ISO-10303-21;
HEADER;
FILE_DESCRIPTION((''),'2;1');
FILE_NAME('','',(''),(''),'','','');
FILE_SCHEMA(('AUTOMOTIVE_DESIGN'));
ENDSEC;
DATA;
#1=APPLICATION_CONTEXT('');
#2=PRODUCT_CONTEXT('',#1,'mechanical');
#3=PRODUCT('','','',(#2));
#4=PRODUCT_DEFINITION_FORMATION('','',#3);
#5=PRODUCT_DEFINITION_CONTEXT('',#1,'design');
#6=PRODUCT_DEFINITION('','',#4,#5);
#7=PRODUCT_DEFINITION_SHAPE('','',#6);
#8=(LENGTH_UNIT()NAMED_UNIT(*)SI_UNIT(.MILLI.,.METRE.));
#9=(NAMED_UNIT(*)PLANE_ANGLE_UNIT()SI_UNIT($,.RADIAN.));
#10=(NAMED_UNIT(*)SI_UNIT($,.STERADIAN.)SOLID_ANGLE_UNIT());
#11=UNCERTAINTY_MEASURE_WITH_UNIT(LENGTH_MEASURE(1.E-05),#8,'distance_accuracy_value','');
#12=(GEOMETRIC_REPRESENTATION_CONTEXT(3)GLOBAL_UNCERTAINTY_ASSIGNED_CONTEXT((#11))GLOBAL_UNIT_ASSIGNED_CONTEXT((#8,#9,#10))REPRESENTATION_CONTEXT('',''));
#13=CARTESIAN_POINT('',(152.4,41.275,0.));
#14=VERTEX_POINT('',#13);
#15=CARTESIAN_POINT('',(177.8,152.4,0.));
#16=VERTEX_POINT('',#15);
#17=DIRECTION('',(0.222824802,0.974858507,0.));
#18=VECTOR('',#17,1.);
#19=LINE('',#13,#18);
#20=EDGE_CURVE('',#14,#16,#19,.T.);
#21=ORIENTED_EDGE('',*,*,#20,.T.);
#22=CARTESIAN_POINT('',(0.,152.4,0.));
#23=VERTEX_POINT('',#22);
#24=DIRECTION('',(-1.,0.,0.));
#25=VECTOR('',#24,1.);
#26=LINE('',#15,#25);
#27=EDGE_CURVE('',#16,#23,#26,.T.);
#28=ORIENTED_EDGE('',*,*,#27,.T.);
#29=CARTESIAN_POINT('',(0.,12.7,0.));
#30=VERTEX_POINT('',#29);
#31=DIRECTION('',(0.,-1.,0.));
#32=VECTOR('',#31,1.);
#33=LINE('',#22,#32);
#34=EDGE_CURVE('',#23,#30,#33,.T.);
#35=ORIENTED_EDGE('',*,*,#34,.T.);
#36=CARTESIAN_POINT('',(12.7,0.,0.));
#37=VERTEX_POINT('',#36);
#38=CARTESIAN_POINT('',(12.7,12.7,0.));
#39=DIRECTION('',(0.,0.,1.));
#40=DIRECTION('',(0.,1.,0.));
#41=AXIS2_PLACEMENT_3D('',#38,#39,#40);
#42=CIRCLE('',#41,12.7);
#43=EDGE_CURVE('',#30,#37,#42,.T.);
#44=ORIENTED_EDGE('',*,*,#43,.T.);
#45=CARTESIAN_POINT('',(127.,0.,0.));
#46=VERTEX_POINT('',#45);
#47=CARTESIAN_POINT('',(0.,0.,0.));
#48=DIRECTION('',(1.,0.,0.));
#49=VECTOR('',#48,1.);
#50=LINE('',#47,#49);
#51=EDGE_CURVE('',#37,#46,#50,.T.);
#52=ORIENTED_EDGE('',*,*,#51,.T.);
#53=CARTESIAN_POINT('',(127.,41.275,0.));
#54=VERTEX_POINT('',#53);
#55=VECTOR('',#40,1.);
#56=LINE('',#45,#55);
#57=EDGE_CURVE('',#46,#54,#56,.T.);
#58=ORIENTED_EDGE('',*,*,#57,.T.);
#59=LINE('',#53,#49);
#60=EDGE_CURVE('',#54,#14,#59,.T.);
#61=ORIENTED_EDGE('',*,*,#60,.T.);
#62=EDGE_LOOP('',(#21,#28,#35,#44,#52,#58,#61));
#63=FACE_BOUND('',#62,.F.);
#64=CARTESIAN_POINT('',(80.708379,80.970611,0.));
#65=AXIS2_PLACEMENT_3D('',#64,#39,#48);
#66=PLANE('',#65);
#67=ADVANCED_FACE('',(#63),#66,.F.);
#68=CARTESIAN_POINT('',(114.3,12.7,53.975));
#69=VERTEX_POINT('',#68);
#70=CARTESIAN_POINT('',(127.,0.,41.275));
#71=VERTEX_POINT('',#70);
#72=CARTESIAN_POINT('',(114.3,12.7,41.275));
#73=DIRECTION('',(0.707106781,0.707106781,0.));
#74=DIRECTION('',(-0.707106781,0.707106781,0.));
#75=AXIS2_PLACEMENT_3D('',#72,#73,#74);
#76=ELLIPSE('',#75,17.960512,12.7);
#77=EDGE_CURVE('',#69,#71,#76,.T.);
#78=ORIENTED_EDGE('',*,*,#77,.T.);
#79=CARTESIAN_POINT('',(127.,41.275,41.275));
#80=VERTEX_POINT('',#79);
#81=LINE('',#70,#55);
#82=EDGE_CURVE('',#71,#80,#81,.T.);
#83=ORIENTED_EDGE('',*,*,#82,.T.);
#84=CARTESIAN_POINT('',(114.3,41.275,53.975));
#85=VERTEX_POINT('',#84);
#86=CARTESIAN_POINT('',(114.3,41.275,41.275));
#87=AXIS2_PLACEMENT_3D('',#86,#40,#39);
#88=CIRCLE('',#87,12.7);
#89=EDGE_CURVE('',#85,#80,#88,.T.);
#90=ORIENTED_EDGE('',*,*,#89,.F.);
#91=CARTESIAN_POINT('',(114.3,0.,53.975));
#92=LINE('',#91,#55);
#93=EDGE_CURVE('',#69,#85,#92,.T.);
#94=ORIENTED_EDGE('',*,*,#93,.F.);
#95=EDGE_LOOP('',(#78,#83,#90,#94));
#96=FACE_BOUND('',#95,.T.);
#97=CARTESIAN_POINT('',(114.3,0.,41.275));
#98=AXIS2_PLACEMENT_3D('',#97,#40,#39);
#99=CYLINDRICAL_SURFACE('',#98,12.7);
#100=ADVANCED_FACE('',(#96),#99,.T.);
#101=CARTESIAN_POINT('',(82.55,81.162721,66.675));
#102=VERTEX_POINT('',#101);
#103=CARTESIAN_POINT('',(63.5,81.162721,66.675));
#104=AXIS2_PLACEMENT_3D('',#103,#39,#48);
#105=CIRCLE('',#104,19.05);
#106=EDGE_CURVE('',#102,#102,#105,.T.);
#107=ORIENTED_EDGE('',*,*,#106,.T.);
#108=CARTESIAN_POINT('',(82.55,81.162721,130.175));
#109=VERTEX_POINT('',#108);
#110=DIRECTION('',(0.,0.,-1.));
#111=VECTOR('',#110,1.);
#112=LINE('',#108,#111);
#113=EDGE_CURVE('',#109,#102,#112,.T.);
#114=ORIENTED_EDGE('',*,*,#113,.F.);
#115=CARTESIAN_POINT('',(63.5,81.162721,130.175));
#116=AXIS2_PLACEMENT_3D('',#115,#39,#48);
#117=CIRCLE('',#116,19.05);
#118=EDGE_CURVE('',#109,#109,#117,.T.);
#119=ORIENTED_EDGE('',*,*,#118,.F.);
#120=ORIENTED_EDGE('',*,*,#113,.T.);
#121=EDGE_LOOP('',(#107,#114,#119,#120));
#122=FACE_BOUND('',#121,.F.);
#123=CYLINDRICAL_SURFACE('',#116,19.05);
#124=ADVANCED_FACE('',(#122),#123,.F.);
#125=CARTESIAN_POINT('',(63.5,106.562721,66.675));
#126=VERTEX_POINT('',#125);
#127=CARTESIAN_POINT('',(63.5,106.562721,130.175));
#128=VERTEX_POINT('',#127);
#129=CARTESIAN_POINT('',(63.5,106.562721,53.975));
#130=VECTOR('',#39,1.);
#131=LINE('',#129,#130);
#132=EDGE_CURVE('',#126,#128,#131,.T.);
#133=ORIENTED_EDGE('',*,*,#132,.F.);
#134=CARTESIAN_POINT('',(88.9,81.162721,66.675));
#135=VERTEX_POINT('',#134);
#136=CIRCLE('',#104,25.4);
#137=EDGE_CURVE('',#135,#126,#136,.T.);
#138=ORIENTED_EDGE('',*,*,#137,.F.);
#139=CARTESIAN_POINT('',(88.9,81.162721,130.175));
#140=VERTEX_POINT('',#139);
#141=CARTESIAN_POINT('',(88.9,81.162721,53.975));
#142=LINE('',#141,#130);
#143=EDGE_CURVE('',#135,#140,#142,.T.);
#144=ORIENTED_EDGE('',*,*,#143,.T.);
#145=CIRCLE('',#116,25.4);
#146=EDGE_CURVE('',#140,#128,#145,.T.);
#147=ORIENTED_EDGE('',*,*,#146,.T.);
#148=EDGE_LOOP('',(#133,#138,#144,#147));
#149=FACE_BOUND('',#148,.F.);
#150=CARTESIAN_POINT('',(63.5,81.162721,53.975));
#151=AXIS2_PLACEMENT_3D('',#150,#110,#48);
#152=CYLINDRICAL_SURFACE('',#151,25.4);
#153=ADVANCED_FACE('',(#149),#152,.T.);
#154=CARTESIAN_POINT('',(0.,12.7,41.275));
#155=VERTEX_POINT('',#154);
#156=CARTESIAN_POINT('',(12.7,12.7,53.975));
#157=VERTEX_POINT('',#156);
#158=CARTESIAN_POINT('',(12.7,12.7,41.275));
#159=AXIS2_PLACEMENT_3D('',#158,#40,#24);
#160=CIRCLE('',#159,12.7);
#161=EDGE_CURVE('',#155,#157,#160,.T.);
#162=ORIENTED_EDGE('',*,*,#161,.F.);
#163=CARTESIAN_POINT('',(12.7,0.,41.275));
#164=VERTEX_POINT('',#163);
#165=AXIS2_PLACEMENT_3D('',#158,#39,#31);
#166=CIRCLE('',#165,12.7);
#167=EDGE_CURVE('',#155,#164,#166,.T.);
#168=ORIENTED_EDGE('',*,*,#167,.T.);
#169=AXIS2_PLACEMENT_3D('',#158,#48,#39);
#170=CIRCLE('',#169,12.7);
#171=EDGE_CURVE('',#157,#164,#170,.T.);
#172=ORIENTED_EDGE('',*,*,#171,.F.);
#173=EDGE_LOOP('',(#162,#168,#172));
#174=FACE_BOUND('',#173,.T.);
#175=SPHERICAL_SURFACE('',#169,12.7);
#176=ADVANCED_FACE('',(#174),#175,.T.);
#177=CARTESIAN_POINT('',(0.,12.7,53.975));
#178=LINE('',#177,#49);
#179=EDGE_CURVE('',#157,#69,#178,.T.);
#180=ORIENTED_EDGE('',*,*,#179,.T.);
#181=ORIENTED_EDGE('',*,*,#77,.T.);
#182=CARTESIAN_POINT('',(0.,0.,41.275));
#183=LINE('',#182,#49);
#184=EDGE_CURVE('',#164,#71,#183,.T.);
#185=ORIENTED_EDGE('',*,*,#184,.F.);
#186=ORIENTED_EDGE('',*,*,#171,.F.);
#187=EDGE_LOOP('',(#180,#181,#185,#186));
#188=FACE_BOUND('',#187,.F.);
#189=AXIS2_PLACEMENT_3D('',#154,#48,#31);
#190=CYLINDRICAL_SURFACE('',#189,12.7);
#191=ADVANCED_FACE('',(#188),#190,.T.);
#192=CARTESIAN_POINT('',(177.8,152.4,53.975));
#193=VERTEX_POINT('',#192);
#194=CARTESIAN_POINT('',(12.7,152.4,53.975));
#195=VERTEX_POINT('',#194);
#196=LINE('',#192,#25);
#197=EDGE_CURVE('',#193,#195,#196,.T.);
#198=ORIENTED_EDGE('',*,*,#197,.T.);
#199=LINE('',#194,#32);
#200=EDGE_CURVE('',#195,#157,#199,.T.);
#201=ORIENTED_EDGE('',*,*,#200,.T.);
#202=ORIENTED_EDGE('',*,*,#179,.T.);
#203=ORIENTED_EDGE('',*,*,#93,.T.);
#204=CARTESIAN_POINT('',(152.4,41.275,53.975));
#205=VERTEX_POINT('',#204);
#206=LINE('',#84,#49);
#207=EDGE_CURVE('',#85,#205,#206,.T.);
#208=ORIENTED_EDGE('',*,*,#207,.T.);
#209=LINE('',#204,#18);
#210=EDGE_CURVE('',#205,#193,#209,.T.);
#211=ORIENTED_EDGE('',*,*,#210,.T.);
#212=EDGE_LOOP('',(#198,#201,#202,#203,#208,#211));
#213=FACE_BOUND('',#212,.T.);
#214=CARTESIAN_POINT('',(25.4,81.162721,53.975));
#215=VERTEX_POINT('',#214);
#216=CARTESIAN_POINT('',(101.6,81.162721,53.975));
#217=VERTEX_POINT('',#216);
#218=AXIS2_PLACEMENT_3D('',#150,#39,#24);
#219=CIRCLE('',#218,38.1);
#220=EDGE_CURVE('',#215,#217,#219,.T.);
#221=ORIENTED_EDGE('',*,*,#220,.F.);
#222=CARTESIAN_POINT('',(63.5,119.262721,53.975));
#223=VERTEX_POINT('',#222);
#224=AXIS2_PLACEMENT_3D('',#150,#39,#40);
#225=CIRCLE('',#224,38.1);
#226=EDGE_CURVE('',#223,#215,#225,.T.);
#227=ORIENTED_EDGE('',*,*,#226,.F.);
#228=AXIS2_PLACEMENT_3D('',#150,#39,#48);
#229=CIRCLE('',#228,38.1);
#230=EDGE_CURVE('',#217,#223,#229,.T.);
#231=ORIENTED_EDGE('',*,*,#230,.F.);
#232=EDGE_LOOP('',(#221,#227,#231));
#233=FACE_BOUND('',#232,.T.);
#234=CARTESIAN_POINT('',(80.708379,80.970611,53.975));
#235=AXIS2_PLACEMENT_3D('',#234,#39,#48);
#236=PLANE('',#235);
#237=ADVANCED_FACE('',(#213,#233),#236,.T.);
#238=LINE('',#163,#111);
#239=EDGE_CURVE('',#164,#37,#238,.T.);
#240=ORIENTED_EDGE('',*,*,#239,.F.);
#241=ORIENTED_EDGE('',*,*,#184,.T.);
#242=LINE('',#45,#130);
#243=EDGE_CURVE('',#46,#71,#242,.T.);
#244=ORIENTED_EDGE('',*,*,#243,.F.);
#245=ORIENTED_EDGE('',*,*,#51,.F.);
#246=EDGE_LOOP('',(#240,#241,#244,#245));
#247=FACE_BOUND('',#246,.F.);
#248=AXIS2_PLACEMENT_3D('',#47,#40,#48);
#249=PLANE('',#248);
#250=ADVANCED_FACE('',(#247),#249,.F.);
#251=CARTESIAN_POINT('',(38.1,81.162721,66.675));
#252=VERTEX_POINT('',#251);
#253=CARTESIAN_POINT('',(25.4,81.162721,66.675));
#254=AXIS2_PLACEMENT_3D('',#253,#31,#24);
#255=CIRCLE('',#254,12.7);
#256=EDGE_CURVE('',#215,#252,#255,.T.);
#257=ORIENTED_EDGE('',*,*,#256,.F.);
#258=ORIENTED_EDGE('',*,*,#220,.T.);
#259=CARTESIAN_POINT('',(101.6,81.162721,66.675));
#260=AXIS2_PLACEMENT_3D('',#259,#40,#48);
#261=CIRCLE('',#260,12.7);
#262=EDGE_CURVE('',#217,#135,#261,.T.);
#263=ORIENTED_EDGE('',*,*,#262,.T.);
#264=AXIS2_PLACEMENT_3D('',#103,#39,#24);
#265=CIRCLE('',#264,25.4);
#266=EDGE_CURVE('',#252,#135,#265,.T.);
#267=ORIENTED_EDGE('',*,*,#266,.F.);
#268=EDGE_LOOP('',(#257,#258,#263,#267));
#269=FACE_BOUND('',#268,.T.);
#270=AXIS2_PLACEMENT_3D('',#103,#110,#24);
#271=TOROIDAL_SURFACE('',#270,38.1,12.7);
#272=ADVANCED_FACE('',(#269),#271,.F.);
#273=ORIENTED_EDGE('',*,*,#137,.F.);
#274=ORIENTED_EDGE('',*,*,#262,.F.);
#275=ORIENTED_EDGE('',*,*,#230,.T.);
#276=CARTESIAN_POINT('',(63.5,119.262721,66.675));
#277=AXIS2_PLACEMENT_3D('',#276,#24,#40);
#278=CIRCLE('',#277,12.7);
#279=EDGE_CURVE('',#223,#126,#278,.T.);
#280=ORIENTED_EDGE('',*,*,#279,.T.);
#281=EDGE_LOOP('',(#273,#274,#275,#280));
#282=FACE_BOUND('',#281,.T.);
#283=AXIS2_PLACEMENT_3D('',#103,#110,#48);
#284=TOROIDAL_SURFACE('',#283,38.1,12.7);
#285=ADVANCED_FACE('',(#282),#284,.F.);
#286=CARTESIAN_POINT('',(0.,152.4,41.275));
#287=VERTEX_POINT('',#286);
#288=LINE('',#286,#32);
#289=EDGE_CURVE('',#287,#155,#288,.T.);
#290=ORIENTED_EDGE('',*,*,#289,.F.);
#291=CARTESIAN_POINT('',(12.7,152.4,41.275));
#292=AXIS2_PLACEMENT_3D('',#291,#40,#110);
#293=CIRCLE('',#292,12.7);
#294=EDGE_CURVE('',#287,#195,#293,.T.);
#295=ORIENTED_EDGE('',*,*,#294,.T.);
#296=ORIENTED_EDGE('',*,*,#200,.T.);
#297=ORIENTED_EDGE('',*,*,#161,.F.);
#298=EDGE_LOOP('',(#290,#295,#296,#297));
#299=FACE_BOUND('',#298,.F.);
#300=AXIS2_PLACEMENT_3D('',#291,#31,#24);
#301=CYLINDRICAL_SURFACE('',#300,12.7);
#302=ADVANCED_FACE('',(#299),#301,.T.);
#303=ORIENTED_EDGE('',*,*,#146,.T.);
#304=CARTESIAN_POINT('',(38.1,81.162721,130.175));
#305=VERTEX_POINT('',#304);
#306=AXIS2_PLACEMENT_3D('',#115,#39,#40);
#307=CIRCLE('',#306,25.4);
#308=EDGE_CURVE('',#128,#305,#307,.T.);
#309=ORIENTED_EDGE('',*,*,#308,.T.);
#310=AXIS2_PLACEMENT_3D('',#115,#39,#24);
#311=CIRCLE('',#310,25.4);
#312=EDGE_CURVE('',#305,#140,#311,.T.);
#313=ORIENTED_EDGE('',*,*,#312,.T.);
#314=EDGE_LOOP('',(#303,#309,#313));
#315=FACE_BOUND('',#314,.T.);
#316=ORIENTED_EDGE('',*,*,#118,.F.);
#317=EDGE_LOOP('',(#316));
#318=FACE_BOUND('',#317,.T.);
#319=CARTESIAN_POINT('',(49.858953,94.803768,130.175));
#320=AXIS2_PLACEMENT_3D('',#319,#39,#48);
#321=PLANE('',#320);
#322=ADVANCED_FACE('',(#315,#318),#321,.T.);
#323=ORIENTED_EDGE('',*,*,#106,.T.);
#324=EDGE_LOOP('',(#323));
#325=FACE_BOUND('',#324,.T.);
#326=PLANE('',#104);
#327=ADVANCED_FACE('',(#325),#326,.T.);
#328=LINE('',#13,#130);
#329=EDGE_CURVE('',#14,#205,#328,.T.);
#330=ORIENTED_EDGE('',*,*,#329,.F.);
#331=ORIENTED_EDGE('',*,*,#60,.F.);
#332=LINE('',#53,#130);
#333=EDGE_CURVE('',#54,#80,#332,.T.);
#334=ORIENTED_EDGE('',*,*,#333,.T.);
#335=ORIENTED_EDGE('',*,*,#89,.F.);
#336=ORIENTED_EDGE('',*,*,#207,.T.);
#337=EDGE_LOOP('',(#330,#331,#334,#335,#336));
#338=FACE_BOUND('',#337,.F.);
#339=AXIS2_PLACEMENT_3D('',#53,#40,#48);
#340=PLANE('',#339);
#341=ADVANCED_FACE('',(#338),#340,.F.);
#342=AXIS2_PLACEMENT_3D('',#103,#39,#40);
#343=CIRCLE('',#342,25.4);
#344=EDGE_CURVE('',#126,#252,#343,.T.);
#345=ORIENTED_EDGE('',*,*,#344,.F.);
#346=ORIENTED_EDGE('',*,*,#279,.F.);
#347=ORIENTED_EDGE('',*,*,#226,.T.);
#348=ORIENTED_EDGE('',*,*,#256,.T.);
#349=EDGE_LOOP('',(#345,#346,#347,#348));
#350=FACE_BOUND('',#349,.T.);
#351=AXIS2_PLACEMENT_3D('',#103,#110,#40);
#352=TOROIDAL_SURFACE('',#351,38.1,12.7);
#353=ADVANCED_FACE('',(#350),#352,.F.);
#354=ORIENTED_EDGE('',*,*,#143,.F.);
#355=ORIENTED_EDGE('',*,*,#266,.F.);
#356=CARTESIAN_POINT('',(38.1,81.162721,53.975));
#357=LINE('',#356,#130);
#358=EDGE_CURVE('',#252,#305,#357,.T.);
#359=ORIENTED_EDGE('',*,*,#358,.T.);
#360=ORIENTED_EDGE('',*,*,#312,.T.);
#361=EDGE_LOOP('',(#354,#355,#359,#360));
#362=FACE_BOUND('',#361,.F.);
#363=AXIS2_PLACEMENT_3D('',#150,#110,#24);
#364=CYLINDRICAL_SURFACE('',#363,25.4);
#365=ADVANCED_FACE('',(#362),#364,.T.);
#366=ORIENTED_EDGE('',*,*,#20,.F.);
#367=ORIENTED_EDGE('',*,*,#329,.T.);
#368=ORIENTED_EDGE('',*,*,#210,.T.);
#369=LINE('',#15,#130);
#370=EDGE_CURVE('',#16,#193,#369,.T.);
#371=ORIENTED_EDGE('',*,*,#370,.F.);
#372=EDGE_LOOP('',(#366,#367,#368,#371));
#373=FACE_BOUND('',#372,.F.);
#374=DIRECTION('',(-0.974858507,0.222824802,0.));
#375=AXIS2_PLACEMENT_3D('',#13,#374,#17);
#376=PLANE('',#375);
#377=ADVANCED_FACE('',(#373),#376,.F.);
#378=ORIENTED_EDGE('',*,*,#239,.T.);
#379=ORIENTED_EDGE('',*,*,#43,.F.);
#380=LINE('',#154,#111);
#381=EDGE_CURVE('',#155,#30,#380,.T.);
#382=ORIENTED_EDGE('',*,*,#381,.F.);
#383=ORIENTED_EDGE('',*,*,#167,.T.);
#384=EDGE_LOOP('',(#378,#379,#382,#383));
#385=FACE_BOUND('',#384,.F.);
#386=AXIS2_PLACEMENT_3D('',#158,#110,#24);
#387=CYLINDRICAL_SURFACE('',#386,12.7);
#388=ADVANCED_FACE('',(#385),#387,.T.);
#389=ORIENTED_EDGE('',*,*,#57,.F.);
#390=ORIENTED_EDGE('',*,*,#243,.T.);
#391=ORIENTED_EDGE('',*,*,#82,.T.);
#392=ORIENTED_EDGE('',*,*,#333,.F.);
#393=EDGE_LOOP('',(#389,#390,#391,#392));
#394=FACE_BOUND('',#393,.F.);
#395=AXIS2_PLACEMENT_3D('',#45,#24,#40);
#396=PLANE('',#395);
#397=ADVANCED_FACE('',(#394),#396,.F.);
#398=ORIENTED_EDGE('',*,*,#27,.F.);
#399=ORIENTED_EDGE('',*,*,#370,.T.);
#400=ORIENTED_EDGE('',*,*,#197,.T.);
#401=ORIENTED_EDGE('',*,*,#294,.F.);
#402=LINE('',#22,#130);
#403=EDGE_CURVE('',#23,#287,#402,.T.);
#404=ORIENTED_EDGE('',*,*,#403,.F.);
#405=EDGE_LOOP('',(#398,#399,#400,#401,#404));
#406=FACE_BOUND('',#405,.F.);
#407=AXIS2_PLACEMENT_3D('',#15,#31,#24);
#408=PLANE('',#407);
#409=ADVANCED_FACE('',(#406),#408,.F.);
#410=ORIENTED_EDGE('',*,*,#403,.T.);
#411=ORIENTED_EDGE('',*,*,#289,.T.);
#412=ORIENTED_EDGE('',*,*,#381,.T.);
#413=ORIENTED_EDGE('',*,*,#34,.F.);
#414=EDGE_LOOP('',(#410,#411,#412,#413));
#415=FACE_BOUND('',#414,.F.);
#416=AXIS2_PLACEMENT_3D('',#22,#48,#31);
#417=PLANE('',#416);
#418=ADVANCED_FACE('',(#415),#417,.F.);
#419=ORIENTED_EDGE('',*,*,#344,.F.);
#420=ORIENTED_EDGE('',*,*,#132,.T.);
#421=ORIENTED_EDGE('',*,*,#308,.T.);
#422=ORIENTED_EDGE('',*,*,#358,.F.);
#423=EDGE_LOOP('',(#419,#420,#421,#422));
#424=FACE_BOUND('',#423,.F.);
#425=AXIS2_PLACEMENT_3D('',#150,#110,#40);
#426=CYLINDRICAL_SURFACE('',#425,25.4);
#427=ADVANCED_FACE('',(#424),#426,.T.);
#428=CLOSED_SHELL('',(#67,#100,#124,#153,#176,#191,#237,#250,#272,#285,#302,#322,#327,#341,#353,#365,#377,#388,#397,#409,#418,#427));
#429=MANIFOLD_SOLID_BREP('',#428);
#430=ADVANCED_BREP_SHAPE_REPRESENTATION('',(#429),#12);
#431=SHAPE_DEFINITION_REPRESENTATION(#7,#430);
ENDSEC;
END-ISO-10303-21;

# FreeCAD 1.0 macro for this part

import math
import FreeCAD as App
import Part
import Sketcher
Q = App.Units.Quantity


def edges_at(feature, points):
    """Names of the edges that pass closest to the given points."""
    edges = feature.Shape.Edges
    near = lambda p: min(range(len(edges)), key=lambda i: edges[i].distToShape(Part.Vertex(*p))[0])
    return sorted({f"Edge{near(p) + 1}" for p in points})

doc = App.newDocument("Part")
body = doc.addObject("PartDesign::Body", "Body")

# Sketch on XY plane
sketch1 = body.newObject("Sketcher::SketchObject", "Sketch")
sketch1.AttachmentSupport = (doc.getObject("XY_Plane"), [""])
sketch1.MapMode = "FlatFace"
sketch1.addGeometry([
    Part.LineSegment(App.Vector(0, 152, 0), App.Vector(0, 0, 0)),  # 0
    Part.LineSegment(App.Vector(0, 0, 0), App.Vector(127, 0, 0)),  # 1
    Part.LineSegment(App.Vector(127, 0, 0), App.Vector(127, 41, 0)),  # 2
    Part.LineSegment(App.Vector(127, 41, 0), App.Vector(152, 41, 0)),  # 3
    Part.LineSegment(App.Vector(152, 41, 0), App.Vector(178, 152, 0)),  # 4
    Part.LineSegment(App.Vector(178, 152, 0), App.Vector(0, 152, 0)),  # 5
], False)
sketch1.addConstraint([
    Sketcher.Constraint("Coincident", 0, 2, 1, 1),
    Sketcher.Constraint("Coincident", 1, 2, 2, 1),
    Sketcher.Constraint("Coincident", 2, 2, 3, 1),
    Sketcher.Constraint("Coincident", 3, 2, 4, 1),
    Sketcher.Constraint("Coincident", 4, 2, 5, 1),
    Sketcher.Constraint("Coincident", 5, 2, 0, 1),
    Sketcher.Constraint("Vertical", 0),
    Sketcher.Constraint("Horizontal", 1),
    Sketcher.Constraint("Vertical", 2),
    Sketcher.Constraint("Horizontal", 3),
    Sketcher.Constraint("Horizontal", 5),
    Sketcher.Constraint("Coincident", 0, 2, -1, 1),
    Sketcher.Constraint("DistanceX", 1, 1, 1, 2, Q("5 in")),
    Sketcher.Constraint("DistanceX", 3, 1, 3, 2, Q("1 in")),
    Sketcher.Constraint("DistanceX", 5, 2, 5, 1, Q("7 in")),
    Sketcher.Constraint("DistanceY", 0, 2, 0, 1, Q("6 in")),
    Sketcher.Constraint("DistanceY", 2, 1, 2, 2, Q("1.625 in")),
])
pad1 = body.newObject("PartDesign::Pad", "Pad")
pad1.Profile = sketch1
pad1.Length = Q("2.125 in")

# Sketch on XY plane
sketch2 = body.newObject("Sketcher::SketchObject", "Sketch001")
sketch2.AttachmentSupport = (doc.getObject("XY_Plane"), [""])
sketch2.MapMode = "FlatFace"
sketch2.AttachmentOffset = App.Placement(App.Vector(0, 0, 2.125 * 25.4), App.Rotation())
sketch2.addGeometry([
    Part.ArcOfCircle(Part.Circle(App.Vector(64, 81, 0), App.Vector(0, 0, 1), 25), math.radians(90), math.radians(180)),
    Part.ArcOfCircle(Part.Circle(App.Vector(64, 81, 0), App.Vector(0, 0, 1), 25), math.radians(180), math.radians(360)),
    Part.ArcOfCircle(Part.Circle(App.Vector(64, 81, 0), App.Vector(0, 0, 1), 25), math.radians(0), math.radians(90)),
], False)
sketch2.addConstraint([
    Sketcher.Constraint("Tangent", 0, 2, 1, 1),
    Sketcher.Constraint("Tangent", 1, 2, 2, 1),
    Sketcher.Constraint("Tangent", 2, 2, 0, 1),
    Sketcher.Constraint("Horizontal", 2, 3, 0, 2),
    Sketcher.Constraint("Horizontal", 0, 2, 1, 2),
    Sketcher.Constraint("Vertical", 1, 3, 2, 2),
    Sketcher.Constraint("Radius", 0, Q("1 in")),
    Sketcher.Constraint("DistanceX", -1, 1, 0, 3, Q("2.5 in")),
    Sketcher.Constraint("DistanceY", -1, 1, 0, 3, 81.162721),
])
pad2 = body.newObject("PartDesign::Pad", "Pad001")
pad2.Profile = sketch2
pad2.Length = Q("3 in")

# Sketch on XY plane
sketch3 = body.newObject("Sketcher::SketchObject", "Sketch002")
sketch3.AttachmentSupport = (doc.getObject("XY_Plane"), [""])
sketch3.MapMode = "FlatFace"
sketch3.AttachmentOffset = App.Placement(App.Vector(0, 0, 5.125 * 25.4), App.Rotation())
sketch3.addGeometry(Part.Circle(App.Vector(64, 81, 0), App.Vector(0, 0, 1), 19), False)
sketch3.addConstraint([
    Sketcher.Constraint("Diameter", 0, Q("1.5 in")),
    Sketcher.Constraint("DistanceX", -1, 1, 0, 3, Q("2.5 in")),
    Sketcher.Constraint("DistanceY", -1, 1, 0, 3, 81.162721),
])
pocket1 = body.newObject("PartDesign::Pocket", "Pocket")
pocket1.Profile = sketch3
pocket1.Length = Q("2.5 in")
doc.recompute()

fillet = body.newObject("PartDesign::Fillet", "Fillet")
fillet.Base = (pocket1, edges_at(pocket1, [(63.5, 55.763, 53.975), (127, 20.637, 53.975), (63.5, 0, 53.975)]))
fillet.Radius = Q("0.5 in")
doc.recompute()

fillet2 = body.newObject("PartDesign::Fillet", "Fillet001")
fillet2.Base = (fillet, edges_at(fillet, [(0, 82.55, 53.975)]))
fillet2.Radius = Q("0.5 in")

doc.recompute()
